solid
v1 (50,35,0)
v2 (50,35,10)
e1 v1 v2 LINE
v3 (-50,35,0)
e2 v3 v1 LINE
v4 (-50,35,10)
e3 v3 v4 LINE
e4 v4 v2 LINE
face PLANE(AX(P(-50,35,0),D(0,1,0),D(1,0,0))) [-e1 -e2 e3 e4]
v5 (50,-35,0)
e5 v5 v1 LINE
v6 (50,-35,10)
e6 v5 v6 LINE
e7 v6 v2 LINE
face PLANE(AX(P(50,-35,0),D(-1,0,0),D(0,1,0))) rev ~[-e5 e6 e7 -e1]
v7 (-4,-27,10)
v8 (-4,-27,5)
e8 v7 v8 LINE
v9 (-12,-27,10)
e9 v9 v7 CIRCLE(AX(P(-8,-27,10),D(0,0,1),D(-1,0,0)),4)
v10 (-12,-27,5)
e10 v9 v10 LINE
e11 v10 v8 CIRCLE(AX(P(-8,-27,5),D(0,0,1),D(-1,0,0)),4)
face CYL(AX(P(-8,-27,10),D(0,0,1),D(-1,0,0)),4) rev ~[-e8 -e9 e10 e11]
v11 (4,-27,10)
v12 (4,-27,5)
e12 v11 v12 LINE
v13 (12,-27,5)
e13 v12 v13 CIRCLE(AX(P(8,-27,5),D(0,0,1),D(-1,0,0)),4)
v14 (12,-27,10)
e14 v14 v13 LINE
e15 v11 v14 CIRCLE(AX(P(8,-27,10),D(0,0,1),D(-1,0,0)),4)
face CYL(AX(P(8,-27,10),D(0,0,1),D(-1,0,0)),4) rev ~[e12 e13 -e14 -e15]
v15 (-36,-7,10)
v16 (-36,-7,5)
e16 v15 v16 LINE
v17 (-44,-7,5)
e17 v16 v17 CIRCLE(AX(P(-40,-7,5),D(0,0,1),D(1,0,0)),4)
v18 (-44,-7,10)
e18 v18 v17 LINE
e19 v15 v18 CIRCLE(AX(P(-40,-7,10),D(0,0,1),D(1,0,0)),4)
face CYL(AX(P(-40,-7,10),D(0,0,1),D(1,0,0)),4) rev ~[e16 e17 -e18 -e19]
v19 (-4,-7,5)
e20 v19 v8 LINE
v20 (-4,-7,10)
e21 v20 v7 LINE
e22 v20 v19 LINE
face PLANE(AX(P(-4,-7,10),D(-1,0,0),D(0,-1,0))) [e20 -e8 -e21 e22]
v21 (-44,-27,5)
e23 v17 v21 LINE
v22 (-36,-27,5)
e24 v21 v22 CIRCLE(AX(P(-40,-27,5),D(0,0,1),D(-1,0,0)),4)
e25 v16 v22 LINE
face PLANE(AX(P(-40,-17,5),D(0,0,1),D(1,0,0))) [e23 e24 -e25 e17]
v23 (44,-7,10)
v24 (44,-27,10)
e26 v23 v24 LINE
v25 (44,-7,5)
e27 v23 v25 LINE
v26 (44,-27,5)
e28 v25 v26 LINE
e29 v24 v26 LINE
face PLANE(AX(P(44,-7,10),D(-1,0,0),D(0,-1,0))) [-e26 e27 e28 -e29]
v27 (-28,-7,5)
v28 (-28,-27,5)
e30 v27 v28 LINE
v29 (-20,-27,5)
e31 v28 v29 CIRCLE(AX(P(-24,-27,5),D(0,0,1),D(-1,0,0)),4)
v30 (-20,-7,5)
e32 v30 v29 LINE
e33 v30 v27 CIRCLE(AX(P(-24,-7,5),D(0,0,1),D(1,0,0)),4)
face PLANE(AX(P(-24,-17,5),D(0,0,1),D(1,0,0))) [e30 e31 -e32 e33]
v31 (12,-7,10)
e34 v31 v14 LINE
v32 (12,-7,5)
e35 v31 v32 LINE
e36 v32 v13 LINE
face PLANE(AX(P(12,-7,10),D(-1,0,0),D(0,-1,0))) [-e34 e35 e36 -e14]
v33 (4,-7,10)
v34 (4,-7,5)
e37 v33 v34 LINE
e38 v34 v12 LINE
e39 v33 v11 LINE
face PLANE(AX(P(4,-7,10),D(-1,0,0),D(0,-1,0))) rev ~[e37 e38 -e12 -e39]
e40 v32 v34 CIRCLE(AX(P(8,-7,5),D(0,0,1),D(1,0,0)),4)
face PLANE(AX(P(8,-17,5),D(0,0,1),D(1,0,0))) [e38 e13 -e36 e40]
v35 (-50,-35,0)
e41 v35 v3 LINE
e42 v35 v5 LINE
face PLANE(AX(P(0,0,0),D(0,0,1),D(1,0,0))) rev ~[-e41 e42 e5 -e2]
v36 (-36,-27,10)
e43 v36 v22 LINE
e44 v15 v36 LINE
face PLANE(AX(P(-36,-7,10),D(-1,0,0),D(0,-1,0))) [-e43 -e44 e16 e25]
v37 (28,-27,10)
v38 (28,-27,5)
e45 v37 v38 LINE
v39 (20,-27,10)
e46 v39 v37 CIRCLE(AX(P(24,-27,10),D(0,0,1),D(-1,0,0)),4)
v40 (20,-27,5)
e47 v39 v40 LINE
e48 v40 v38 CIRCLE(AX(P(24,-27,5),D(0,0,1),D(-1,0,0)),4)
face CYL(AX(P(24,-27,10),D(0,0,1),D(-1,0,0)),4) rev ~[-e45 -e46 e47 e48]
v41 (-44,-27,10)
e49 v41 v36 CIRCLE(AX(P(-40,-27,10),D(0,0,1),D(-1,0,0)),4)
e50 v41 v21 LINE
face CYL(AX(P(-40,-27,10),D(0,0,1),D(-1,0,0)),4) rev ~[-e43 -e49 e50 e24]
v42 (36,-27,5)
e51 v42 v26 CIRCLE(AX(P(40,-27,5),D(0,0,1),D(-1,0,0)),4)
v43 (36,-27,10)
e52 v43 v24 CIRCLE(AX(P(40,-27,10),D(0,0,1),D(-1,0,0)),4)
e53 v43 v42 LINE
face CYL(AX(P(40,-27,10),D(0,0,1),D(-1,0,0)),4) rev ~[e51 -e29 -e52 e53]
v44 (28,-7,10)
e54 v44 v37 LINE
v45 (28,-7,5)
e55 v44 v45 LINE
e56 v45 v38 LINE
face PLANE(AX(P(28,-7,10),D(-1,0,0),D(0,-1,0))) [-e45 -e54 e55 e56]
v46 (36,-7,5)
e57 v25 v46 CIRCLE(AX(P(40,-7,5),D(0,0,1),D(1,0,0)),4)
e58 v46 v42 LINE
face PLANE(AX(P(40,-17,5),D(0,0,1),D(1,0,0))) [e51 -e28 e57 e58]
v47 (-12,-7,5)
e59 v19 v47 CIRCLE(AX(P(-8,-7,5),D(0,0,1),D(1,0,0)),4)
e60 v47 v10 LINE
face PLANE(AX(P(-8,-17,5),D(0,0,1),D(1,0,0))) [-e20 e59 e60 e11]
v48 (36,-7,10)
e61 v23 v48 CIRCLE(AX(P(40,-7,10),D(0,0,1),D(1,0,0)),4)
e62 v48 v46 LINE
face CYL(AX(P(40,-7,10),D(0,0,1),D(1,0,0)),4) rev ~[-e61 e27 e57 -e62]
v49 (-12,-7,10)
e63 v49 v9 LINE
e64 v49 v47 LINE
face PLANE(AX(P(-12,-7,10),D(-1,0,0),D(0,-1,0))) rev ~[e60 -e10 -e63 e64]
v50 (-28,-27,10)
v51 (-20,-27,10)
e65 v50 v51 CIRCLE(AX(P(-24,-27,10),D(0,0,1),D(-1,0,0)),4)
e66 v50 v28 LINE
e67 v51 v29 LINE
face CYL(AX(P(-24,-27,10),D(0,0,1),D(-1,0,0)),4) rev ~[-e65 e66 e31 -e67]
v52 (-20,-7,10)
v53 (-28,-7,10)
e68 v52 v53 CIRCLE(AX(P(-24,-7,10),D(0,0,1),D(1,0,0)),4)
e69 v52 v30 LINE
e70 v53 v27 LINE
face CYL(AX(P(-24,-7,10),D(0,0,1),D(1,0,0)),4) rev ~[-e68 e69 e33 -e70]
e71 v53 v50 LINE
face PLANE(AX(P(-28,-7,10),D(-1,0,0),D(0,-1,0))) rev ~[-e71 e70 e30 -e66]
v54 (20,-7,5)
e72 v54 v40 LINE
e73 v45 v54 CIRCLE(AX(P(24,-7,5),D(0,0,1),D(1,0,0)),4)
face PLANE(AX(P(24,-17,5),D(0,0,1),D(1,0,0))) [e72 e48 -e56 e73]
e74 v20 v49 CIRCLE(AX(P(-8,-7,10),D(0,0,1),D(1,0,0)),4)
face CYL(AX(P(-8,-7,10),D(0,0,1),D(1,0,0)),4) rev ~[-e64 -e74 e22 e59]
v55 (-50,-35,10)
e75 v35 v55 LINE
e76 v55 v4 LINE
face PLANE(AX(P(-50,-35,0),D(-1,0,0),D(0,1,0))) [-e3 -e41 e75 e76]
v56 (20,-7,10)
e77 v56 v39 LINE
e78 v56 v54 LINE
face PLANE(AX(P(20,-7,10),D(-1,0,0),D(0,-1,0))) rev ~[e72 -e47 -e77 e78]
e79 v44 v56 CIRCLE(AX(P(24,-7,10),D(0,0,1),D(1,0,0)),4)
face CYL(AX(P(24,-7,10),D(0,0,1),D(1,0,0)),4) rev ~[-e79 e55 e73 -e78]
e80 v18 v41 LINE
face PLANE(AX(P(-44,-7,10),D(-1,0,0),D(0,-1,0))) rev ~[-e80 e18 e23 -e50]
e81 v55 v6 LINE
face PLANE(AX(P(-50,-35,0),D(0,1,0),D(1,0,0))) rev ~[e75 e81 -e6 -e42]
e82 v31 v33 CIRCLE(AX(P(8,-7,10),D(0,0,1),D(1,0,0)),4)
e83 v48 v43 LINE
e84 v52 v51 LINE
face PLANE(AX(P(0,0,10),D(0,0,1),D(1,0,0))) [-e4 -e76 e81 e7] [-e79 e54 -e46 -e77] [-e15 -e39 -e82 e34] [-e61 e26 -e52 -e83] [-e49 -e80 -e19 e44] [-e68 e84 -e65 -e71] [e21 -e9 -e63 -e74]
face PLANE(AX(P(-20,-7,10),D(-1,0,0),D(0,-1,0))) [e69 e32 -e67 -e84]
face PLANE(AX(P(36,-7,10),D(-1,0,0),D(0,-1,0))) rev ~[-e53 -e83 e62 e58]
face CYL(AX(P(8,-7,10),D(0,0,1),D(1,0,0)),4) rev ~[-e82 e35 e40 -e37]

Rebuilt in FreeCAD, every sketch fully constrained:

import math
import FreeCAD as App
import Part
import Sketcher

V = App.Vector
Q = App.Units.Quantity


def add_polygon(sketch, points):
    """Adds a closed chain of lines whose ends are joined by coincident constraints."""
    first, n = sketch.GeometryCount, len(points)
    for a, b in zip(points, points[1:] + points[:1]):
        sketch.addGeometry(Part.LineSegment(App.Vector(*a, 0), App.Vector(*b, 0)), False)
    for i in range(n):
        sketch.addConstraint(Sketcher.Constraint("Coincident", first + i, 2, first + (i + 1) % n, 1))

doc = App.newDocument("Part")
body = doc.addObject("PartDesign::Body", "Body")

# Sketch on XY plane
sketch1 = doc.addObject("Sketcher::SketchObject", "Sketch")
body.addObject(sketch1)
sketch1.AttachmentSupport = (doc.XY_Plane, [""])
sketch1.MapMode = "FlatFace"
add_polygon(sketch1, [(-50, 35), (-50, -35), (50, -35), (50, 35)])  # lines 0-3
sketch1.addConstraint(Sketcher.Constraint("Vertical", 0))
sketch1.addConstraint(Sketcher.Constraint("Horizontal", 1))
sketch1.addConstraint(Sketcher.Constraint("Vertical", 2))
sketch1.addConstraint(Sketcher.Constraint("Horizontal", 3))
sketch1.addConstraint(Sketcher.Constraint("Symmetric", 0, 2, 2, 2, -1, 1))
sketch1.addConstraint(Sketcher.Constraint("DistanceX", 1, 1, 1, 2, Q("100 mm")))
sketch1.addConstraint(Sketcher.Constraint("DistanceY", 0, 2, 0, 1, Q("70 mm")))
pad1 = doc.addObject("PartDesign::Pad", "Pad")
body.addObject(pad1)
pad1.Profile = sketch1
pad1.Length = 10

# Sketch on XY plane
sketch2 = doc.addObject("Sketcher::SketchObject", "Sketch001")
body.addObject(sketch2)
sketch2.AttachmentSupport = (doc.XY_Plane, [""])
sketch2.MapMode = "FlatFace"
sketch2.AttachmentOffset = App.Placement(V(0, 0, 10), App.Rotation())
sketch2.addGeometry(Part.ArcOfCircle(Part.Circle(V(-40, -7, 0), V(0, 0, 1), 4), math.radians(0), math.radians(180)), False)
sketch2.addGeometry(Part.LineSegment(V(-44, -7, 0), V(-44, -27, 0)), False)
sketch2.addGeometry(Part.ArcOfCircle(Part.Circle(V(-40, -27, 0), V(0, 0, 1), 4), math.radians(180), math.radians(360)), False)
sketch2.addGeometry(Part.LineSegment(V(-36, -27, 0), V(-36, -7, 0)), False)
sketch2.addConstraint(Sketcher.Constraint("Tangent", 0, 2, 1, 1))
sketch2.addConstraint(Sketcher.Constraint("Tangent", 1, 2, 2, 1))
sketch2.addConstraint(Sketcher.Constraint("Tangent", 2, 2, 3, 1))
sketch2.addConstraint(Sketcher.Constraint("Tangent", 3, 2, 0, 1))
sketch2.addConstraint(Sketcher.Constraint("Vertical", 1))
sketch2.addConstraint(Sketcher.Constraint("Vertical", 3))
sketch2.addConstraint(Sketcher.Constraint("Radius", 0, Q("4 mm")))
sketch2.addConstraint(Sketcher.Constraint("DistanceY", 1, 2, 1, 1, Q("20 mm")))
sketch2.addConstraint(Sketcher.Constraint("DistanceX", 0, 3, -1, 1, Q("40 mm")))
sketch2.addConstraint(Sketcher.Constraint("DistanceY", 0, 3, -1, 1, Q("7 mm")))
pocket1 = doc.addObject("PartDesign::Pocket", "Pocket")
body.addObject(pocket1)
pocket1.Profile = sketch2
pocket1.Length = 5
doc.recompute()

linearpattern = doc.addObject("PartDesign::LinearPattern", "LinearPattern")
body.addObject(linearpattern)
linearpattern.Originals = [pocket1]
linearpattern.Direction = (doc.X_Axis, [""])
linearpattern.Mode = "offset"
linearpattern.Offset = 16
linearpattern.Occurrences = 6
body.Tip = linearpattern

doc.recompute()
